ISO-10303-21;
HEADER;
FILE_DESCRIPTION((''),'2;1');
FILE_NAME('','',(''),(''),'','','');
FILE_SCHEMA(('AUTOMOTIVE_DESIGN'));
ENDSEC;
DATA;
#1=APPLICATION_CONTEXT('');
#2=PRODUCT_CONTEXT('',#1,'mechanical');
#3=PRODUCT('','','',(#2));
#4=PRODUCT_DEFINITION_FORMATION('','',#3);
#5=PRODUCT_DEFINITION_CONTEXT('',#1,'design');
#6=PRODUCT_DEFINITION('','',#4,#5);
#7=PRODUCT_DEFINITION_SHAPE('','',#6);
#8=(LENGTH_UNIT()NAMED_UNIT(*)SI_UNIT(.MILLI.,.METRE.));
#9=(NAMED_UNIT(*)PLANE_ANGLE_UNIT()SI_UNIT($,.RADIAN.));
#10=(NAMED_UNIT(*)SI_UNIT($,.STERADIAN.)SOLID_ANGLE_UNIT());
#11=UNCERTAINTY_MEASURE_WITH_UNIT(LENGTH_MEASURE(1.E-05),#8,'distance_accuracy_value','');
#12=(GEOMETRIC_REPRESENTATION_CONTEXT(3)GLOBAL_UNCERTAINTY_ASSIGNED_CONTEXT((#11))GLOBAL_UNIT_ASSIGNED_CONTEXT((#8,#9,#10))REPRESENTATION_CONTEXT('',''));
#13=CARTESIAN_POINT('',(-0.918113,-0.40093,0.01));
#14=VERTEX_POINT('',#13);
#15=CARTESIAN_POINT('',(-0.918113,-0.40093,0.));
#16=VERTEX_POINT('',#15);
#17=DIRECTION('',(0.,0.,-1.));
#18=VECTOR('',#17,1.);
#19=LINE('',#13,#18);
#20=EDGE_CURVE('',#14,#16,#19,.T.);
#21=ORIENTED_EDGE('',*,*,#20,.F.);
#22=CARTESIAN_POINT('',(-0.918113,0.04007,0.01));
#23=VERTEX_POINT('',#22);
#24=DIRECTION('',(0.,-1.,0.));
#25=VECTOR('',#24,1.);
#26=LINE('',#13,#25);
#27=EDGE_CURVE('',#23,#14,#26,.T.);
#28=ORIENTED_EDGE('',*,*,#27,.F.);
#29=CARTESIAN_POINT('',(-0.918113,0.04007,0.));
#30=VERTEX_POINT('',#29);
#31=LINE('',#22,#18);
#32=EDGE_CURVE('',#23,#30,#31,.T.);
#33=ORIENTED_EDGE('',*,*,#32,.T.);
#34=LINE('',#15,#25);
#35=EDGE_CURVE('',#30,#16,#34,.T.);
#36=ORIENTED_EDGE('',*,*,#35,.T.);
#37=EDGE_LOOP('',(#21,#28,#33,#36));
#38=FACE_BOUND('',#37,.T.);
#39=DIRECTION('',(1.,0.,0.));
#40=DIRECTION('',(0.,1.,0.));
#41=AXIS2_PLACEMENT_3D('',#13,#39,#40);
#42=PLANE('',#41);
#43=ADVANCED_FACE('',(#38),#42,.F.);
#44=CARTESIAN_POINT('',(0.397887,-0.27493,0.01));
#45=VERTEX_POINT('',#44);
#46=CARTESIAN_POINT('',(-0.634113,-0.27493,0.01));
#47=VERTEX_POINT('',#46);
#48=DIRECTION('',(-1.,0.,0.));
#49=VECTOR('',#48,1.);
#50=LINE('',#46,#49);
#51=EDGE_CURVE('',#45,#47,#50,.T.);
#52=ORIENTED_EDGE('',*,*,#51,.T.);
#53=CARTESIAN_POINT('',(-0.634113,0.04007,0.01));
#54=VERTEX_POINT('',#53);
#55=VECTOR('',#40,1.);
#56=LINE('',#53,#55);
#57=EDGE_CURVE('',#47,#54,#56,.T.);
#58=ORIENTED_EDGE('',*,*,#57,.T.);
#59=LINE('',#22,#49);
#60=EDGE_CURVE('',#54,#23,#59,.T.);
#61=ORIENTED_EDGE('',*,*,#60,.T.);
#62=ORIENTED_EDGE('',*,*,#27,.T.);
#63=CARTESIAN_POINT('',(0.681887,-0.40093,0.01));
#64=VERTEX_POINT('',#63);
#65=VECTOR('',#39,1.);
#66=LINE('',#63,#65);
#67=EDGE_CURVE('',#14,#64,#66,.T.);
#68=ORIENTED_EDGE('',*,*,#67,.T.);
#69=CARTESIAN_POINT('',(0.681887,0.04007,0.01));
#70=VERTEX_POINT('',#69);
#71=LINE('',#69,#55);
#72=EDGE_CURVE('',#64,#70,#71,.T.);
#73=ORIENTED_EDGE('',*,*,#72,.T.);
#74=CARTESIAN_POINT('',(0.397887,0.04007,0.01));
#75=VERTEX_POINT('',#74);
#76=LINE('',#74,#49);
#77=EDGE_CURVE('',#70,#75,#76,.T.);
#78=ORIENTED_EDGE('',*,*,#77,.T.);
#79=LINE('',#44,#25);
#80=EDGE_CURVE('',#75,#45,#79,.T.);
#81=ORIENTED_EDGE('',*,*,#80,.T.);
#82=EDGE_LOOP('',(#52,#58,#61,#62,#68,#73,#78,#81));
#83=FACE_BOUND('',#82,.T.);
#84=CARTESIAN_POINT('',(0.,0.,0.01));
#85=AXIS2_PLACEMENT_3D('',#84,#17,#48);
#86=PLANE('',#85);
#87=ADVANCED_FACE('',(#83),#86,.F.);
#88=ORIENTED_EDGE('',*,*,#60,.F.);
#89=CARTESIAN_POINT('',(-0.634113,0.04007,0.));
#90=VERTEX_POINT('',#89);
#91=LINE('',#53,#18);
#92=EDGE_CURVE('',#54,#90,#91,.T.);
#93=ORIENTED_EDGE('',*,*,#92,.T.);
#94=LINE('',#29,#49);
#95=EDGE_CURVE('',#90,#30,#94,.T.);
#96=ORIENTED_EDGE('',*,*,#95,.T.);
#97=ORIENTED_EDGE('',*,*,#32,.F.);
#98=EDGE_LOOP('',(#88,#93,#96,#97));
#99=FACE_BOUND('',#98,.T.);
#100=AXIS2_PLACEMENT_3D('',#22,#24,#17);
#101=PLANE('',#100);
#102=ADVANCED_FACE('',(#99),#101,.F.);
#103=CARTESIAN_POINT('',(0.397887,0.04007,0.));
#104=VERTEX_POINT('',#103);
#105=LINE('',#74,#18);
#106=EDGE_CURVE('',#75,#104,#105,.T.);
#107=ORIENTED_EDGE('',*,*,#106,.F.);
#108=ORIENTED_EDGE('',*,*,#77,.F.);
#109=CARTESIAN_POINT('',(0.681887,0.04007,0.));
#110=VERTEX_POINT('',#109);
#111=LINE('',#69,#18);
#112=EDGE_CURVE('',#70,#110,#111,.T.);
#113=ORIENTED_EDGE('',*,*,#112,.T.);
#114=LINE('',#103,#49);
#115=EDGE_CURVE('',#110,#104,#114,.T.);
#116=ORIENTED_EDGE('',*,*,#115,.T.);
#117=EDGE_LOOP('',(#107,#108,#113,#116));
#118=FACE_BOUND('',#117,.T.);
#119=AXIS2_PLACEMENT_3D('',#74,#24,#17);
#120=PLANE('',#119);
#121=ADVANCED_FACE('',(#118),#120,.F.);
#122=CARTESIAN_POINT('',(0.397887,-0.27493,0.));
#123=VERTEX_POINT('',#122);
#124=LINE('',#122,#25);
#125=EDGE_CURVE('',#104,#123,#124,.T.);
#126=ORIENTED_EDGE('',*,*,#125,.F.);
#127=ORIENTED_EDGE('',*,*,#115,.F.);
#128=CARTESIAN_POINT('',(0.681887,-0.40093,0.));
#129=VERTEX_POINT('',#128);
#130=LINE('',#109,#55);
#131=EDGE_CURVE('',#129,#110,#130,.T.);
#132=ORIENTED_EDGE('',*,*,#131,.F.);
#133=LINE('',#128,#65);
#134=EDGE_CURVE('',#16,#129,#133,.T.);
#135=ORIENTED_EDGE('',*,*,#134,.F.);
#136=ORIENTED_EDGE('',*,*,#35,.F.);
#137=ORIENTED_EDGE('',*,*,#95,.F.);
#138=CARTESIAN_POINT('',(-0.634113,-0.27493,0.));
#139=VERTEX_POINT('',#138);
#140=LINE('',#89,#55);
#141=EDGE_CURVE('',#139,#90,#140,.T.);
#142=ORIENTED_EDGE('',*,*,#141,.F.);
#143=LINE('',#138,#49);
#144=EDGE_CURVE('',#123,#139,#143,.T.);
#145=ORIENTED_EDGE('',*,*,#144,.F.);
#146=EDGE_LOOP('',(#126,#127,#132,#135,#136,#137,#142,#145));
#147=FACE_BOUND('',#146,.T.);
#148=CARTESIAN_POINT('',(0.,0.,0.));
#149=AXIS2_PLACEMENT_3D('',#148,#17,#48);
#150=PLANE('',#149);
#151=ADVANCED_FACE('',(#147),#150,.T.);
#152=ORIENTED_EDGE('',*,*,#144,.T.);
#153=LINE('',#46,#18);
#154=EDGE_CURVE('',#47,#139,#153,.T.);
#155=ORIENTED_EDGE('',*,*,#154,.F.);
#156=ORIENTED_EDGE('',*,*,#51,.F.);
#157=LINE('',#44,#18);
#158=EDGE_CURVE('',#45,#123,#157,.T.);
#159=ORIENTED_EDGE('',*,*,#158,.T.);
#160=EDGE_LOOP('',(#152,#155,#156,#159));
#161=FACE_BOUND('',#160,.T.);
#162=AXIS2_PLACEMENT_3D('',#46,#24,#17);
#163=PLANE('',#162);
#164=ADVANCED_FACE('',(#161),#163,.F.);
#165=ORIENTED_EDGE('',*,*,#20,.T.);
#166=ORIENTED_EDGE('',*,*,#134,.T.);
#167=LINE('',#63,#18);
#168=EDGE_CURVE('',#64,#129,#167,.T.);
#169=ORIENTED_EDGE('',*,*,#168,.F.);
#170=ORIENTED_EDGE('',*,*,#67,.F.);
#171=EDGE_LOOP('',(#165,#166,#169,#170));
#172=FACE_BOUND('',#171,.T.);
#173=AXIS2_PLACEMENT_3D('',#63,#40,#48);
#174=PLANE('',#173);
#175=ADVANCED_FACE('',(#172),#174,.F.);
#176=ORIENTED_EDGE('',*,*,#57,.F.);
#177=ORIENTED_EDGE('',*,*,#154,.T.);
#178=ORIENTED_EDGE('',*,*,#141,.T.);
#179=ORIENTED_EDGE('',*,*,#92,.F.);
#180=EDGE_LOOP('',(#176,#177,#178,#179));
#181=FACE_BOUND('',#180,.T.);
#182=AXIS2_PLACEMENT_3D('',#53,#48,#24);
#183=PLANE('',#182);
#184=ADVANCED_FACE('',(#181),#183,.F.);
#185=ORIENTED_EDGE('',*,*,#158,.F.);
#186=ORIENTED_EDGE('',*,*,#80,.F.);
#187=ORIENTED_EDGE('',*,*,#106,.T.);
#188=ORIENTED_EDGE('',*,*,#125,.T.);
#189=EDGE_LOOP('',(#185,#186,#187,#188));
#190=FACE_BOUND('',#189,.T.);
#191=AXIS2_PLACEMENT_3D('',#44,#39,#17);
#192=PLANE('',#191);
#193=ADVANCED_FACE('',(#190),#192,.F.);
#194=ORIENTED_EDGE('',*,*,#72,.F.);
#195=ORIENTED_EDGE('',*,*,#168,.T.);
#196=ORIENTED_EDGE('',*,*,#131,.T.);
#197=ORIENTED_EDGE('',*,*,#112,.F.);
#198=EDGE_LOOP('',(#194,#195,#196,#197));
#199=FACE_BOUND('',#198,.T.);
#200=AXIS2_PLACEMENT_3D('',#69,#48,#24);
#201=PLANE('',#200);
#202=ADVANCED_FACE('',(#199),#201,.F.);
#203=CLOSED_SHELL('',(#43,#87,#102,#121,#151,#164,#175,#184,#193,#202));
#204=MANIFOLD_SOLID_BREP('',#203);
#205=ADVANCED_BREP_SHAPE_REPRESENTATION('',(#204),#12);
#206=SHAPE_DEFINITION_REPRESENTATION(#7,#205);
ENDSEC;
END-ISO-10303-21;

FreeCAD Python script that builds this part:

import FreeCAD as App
import Part
import Sketcher

V = App.Vector
Q = App.Units.Quantity


def add_polygon(sketch, points):
    """Adds a closed chain of lines whose ends are joined by coincident constraints."""
    first, n = sketch.GeometryCount, len(points)
    for a, b in zip(points, points[1:] + points[:1]):
        sketch.addGeometry(Part.LineSegment(App.Vector(*a, 0), App.Vector(*b, 0)), False)
    for i in range(n):
        sketch.addConstraint(Sketcher.Constraint("Coincident", first + i, 2, first + (i + 1) % n, 1))

doc = App.newDocument("Part")
params = doc.addObject("Spreadsheet::Sheet", "Params")
for row, (alias, value) in enumerate([
    ("sketch1_width", "1.6 mm"),
    ("pad1_length", "0.01 mm"),
], start=1):
    params.set(f"A{row}", alias)
    params.set(f"B{row}", "=" + value)
    params.setAlias(f"B{row}", alias)

body = doc.addObject("PartDesign::Body", "Body")

sketch1 = body.newObject("Sketcher::SketchObject", "Sketch")
sketch1.AttachmentSupport = (doc.getObject("XY_Plane"), [""])
sketch1.MapMode = "FlatFace"
add_polygon(sketch1, [(0.68, -0.4), (0.68, 0.04), (0.4, 0.04), (0.4, -0.27), (-0.63, -0.27), (-0.63, 0.04), (-0.92, 0.04), (-0.92, -0.4)])
sketch1.addConstraint([
    Sketcher.Constraint("Vertical", 0),
    Sketcher.Constraint("Horizontal", 1),
    Sketcher.Constraint("Vertical", 2),
    Sketcher.Constraint("Horizontal", 3),
    Sketcher.Constraint("Vertical", 4),
    Sketcher.Constraint("Horizontal", 5),
    Sketcher.Constraint("Vertical", 6),
    Sketcher.Constraint("Horizontal", 7),
    Sketcher.Constraint("Horizontal", 1, 2, 4, 2),
    Sketcher.Constraint("Equal", 1, 5),
    Sketcher.Constraint("DistanceX", 7, 1, 7, 2, Q("1.6 mm")),
    Sketcher.Constraint("DistanceX", 1, 2, 1, 1, Q("0.284 mm")),
    Sketcher.Constraint("DistanceY", 0, 1, 0, 2, Q("0.441 mm")),
    Sketcher.Constraint("DistanceY", 2, 2, 2, 1, Q("0.315 mm")),
    Sketcher.Constraint("DistanceY", -1, 1, 0, 2, Q("0.04007 mm")),
    Sketcher.Constraint("DistanceX", -1, 1, 0, 2, Q("0.681887 mm")),
])
sketch1.setExpression("Constraints[18]", "Params.sketch1_width")
pad1 = body.newObject("PartDesign::Pad", "Pad")
pad1.Profile = sketch1
pad1.setExpression("Length", "Params.pad1_length")

doc.recompute()
